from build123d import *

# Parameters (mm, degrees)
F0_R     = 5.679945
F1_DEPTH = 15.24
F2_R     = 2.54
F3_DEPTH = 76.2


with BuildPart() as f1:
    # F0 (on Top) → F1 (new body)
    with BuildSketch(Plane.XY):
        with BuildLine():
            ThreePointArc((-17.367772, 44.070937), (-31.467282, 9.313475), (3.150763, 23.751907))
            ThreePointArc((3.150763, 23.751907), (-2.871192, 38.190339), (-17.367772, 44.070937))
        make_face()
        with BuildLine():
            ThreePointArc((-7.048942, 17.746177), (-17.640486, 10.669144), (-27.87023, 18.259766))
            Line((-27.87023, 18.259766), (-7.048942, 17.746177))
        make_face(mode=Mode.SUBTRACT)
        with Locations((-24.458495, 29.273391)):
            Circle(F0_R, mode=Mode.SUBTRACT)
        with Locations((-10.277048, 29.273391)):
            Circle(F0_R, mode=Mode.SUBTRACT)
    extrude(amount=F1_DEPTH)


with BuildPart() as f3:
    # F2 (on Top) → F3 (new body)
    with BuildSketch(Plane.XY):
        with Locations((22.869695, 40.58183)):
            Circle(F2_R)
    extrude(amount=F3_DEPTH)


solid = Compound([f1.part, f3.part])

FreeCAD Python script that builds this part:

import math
import FreeCAD as App
import Part
import Sketcher
from FreeCAD import Vector
Q = App.Units.Quantity

doc = App.newDocument("Part")
body = doc.addObject("PartDesign::Body", "Body")

# Sketch on XY plane
sketch1 = doc.addObject("Sketcher::SketchObject", "Sketch")
body.addObject(sketch1)
sketch1.AttachmentSupport = (doc.XY_Plane, [""])
sketch1.MapMode = "FlatFace"
sketch1.addGeometry([
    Part.ArcOfCircle(Part.Circle(Vector(-17, 24, 0), Vector(0, 0, 1), 20), math.radians(91), math.radians(360)),  # 0
    Part.ArcOfCircle(Part.Circle(Vector(-17, 24, 0), Vector(0, 0, 1), 20), math.radians(0), math.radians(91)),  # 1
    Part.LineSegment(Vector(-28, 18, 0), Vector(-7, 18, 0)),  # 2
    Part.ArcOfCircle(Part.Circle(Vector(-17, 22, 0), Vector(0, 0, 1), 11), math.radians(-162), math.radians(-21)),  # 3
    Part.Circle(Vector(-24, 29, 0), Vector(0, 0, 1), 6),  # 4
    Part.Circle(Vector(-10, 29, 0), Vector(0, 0, 1), 6),  # 5
], False)
sketch1.addConstraint([
    Sketcher.Constraint("Tangent", 0, 1, 1, 2),
    Sketcher.Constraint("Coincident", 1, 1, 0, 2),
    Sketcher.Constraint("Coincident", 2, 1, 3, 1),
    Sketcher.Constraint("Coincident", 3, 2, 2, 2),
    Sketcher.Constraint("Equal", 4, 5),
    Sketcher.Constraint("Horizontal", 4, 3, 5, 3),
    Sketcher.Constraint("Horizontal", 0, 3, 1, 1),
    Sketcher.Constraint("Vertical", 3, 3, 0, 1),
    Sketcher.Constraint("Radius", 0, Q("0.8 in")),
    Sketcher.Constraint("Diameter", 4, 11.35989),
    Sketcher.Constraint("Radius", 3, 11.059427),
    Sketcher.Constraint("DistanceY", 3, 3, 0, 3, 2.026699),
    Sketcher.Constraint("Distance", 2, 20.827621),
    Sketcher.Constraint("DistanceX", 3, 3, -1, 1, 17.367771),
    Sketcher.Constraint("DistanceY", -1, 1, 3, 3, 21.725208),
    Sketcher.Constraint("DistanceY", -1, 1, 4, 3, 29.273391),
    Sketcher.Constraint("DistanceX", 5, 3, -1, 1, 10.277048),
    Sketcher.Constraint("DistanceX", 2, 1, -1, 1, 27.87023),
    Sketcher.Constraint("DistanceX", 4, 3, 1, 3, 7.289259),
    Sketcher.Constraint("DistanceX", 1, 3, 5, 3, 6.892188),
])
pad1 = doc.addObject("PartDesign::Pad", "Pad")
body.addObject(pad1)
pad1.Profile = sketch1
pad1.Length = Q("0.6 in")
body2 = doc.addObject("PartDesign::Body", "Body001")

# Sketch on XY plane
sketch2 = doc.addObject("Sketcher::SketchObject", "Sketch001")
body2.addObject(sketch2)
sketch2.AttachmentSupport = (doc.getObject("XY_Plane001"), [""])
sketch2.MapMode = "FlatFace"
sketch2.addGeometry(Part.Circle(Vector(22.9, 40.6, 0), Vector(0, 0, 1), 2.5), False)
sketch2.addConstraint([
    Sketcher.Constraint("Diameter", 0, Q("0.2 in")),
    Sketcher.Constraint("DistanceY", -1, 1, 0, 3, 40.58183),
    Sketcher.Constraint("DistanceX", -1, 1, 0, 3, 22.869695),
])
pad2 = doc.addObject("PartDesign::Pad", "Pad001")
body2.addObject(pad2)
pad2.Profile = sketch2
pad2.Length = Q("3 in")

doc.recompute()
